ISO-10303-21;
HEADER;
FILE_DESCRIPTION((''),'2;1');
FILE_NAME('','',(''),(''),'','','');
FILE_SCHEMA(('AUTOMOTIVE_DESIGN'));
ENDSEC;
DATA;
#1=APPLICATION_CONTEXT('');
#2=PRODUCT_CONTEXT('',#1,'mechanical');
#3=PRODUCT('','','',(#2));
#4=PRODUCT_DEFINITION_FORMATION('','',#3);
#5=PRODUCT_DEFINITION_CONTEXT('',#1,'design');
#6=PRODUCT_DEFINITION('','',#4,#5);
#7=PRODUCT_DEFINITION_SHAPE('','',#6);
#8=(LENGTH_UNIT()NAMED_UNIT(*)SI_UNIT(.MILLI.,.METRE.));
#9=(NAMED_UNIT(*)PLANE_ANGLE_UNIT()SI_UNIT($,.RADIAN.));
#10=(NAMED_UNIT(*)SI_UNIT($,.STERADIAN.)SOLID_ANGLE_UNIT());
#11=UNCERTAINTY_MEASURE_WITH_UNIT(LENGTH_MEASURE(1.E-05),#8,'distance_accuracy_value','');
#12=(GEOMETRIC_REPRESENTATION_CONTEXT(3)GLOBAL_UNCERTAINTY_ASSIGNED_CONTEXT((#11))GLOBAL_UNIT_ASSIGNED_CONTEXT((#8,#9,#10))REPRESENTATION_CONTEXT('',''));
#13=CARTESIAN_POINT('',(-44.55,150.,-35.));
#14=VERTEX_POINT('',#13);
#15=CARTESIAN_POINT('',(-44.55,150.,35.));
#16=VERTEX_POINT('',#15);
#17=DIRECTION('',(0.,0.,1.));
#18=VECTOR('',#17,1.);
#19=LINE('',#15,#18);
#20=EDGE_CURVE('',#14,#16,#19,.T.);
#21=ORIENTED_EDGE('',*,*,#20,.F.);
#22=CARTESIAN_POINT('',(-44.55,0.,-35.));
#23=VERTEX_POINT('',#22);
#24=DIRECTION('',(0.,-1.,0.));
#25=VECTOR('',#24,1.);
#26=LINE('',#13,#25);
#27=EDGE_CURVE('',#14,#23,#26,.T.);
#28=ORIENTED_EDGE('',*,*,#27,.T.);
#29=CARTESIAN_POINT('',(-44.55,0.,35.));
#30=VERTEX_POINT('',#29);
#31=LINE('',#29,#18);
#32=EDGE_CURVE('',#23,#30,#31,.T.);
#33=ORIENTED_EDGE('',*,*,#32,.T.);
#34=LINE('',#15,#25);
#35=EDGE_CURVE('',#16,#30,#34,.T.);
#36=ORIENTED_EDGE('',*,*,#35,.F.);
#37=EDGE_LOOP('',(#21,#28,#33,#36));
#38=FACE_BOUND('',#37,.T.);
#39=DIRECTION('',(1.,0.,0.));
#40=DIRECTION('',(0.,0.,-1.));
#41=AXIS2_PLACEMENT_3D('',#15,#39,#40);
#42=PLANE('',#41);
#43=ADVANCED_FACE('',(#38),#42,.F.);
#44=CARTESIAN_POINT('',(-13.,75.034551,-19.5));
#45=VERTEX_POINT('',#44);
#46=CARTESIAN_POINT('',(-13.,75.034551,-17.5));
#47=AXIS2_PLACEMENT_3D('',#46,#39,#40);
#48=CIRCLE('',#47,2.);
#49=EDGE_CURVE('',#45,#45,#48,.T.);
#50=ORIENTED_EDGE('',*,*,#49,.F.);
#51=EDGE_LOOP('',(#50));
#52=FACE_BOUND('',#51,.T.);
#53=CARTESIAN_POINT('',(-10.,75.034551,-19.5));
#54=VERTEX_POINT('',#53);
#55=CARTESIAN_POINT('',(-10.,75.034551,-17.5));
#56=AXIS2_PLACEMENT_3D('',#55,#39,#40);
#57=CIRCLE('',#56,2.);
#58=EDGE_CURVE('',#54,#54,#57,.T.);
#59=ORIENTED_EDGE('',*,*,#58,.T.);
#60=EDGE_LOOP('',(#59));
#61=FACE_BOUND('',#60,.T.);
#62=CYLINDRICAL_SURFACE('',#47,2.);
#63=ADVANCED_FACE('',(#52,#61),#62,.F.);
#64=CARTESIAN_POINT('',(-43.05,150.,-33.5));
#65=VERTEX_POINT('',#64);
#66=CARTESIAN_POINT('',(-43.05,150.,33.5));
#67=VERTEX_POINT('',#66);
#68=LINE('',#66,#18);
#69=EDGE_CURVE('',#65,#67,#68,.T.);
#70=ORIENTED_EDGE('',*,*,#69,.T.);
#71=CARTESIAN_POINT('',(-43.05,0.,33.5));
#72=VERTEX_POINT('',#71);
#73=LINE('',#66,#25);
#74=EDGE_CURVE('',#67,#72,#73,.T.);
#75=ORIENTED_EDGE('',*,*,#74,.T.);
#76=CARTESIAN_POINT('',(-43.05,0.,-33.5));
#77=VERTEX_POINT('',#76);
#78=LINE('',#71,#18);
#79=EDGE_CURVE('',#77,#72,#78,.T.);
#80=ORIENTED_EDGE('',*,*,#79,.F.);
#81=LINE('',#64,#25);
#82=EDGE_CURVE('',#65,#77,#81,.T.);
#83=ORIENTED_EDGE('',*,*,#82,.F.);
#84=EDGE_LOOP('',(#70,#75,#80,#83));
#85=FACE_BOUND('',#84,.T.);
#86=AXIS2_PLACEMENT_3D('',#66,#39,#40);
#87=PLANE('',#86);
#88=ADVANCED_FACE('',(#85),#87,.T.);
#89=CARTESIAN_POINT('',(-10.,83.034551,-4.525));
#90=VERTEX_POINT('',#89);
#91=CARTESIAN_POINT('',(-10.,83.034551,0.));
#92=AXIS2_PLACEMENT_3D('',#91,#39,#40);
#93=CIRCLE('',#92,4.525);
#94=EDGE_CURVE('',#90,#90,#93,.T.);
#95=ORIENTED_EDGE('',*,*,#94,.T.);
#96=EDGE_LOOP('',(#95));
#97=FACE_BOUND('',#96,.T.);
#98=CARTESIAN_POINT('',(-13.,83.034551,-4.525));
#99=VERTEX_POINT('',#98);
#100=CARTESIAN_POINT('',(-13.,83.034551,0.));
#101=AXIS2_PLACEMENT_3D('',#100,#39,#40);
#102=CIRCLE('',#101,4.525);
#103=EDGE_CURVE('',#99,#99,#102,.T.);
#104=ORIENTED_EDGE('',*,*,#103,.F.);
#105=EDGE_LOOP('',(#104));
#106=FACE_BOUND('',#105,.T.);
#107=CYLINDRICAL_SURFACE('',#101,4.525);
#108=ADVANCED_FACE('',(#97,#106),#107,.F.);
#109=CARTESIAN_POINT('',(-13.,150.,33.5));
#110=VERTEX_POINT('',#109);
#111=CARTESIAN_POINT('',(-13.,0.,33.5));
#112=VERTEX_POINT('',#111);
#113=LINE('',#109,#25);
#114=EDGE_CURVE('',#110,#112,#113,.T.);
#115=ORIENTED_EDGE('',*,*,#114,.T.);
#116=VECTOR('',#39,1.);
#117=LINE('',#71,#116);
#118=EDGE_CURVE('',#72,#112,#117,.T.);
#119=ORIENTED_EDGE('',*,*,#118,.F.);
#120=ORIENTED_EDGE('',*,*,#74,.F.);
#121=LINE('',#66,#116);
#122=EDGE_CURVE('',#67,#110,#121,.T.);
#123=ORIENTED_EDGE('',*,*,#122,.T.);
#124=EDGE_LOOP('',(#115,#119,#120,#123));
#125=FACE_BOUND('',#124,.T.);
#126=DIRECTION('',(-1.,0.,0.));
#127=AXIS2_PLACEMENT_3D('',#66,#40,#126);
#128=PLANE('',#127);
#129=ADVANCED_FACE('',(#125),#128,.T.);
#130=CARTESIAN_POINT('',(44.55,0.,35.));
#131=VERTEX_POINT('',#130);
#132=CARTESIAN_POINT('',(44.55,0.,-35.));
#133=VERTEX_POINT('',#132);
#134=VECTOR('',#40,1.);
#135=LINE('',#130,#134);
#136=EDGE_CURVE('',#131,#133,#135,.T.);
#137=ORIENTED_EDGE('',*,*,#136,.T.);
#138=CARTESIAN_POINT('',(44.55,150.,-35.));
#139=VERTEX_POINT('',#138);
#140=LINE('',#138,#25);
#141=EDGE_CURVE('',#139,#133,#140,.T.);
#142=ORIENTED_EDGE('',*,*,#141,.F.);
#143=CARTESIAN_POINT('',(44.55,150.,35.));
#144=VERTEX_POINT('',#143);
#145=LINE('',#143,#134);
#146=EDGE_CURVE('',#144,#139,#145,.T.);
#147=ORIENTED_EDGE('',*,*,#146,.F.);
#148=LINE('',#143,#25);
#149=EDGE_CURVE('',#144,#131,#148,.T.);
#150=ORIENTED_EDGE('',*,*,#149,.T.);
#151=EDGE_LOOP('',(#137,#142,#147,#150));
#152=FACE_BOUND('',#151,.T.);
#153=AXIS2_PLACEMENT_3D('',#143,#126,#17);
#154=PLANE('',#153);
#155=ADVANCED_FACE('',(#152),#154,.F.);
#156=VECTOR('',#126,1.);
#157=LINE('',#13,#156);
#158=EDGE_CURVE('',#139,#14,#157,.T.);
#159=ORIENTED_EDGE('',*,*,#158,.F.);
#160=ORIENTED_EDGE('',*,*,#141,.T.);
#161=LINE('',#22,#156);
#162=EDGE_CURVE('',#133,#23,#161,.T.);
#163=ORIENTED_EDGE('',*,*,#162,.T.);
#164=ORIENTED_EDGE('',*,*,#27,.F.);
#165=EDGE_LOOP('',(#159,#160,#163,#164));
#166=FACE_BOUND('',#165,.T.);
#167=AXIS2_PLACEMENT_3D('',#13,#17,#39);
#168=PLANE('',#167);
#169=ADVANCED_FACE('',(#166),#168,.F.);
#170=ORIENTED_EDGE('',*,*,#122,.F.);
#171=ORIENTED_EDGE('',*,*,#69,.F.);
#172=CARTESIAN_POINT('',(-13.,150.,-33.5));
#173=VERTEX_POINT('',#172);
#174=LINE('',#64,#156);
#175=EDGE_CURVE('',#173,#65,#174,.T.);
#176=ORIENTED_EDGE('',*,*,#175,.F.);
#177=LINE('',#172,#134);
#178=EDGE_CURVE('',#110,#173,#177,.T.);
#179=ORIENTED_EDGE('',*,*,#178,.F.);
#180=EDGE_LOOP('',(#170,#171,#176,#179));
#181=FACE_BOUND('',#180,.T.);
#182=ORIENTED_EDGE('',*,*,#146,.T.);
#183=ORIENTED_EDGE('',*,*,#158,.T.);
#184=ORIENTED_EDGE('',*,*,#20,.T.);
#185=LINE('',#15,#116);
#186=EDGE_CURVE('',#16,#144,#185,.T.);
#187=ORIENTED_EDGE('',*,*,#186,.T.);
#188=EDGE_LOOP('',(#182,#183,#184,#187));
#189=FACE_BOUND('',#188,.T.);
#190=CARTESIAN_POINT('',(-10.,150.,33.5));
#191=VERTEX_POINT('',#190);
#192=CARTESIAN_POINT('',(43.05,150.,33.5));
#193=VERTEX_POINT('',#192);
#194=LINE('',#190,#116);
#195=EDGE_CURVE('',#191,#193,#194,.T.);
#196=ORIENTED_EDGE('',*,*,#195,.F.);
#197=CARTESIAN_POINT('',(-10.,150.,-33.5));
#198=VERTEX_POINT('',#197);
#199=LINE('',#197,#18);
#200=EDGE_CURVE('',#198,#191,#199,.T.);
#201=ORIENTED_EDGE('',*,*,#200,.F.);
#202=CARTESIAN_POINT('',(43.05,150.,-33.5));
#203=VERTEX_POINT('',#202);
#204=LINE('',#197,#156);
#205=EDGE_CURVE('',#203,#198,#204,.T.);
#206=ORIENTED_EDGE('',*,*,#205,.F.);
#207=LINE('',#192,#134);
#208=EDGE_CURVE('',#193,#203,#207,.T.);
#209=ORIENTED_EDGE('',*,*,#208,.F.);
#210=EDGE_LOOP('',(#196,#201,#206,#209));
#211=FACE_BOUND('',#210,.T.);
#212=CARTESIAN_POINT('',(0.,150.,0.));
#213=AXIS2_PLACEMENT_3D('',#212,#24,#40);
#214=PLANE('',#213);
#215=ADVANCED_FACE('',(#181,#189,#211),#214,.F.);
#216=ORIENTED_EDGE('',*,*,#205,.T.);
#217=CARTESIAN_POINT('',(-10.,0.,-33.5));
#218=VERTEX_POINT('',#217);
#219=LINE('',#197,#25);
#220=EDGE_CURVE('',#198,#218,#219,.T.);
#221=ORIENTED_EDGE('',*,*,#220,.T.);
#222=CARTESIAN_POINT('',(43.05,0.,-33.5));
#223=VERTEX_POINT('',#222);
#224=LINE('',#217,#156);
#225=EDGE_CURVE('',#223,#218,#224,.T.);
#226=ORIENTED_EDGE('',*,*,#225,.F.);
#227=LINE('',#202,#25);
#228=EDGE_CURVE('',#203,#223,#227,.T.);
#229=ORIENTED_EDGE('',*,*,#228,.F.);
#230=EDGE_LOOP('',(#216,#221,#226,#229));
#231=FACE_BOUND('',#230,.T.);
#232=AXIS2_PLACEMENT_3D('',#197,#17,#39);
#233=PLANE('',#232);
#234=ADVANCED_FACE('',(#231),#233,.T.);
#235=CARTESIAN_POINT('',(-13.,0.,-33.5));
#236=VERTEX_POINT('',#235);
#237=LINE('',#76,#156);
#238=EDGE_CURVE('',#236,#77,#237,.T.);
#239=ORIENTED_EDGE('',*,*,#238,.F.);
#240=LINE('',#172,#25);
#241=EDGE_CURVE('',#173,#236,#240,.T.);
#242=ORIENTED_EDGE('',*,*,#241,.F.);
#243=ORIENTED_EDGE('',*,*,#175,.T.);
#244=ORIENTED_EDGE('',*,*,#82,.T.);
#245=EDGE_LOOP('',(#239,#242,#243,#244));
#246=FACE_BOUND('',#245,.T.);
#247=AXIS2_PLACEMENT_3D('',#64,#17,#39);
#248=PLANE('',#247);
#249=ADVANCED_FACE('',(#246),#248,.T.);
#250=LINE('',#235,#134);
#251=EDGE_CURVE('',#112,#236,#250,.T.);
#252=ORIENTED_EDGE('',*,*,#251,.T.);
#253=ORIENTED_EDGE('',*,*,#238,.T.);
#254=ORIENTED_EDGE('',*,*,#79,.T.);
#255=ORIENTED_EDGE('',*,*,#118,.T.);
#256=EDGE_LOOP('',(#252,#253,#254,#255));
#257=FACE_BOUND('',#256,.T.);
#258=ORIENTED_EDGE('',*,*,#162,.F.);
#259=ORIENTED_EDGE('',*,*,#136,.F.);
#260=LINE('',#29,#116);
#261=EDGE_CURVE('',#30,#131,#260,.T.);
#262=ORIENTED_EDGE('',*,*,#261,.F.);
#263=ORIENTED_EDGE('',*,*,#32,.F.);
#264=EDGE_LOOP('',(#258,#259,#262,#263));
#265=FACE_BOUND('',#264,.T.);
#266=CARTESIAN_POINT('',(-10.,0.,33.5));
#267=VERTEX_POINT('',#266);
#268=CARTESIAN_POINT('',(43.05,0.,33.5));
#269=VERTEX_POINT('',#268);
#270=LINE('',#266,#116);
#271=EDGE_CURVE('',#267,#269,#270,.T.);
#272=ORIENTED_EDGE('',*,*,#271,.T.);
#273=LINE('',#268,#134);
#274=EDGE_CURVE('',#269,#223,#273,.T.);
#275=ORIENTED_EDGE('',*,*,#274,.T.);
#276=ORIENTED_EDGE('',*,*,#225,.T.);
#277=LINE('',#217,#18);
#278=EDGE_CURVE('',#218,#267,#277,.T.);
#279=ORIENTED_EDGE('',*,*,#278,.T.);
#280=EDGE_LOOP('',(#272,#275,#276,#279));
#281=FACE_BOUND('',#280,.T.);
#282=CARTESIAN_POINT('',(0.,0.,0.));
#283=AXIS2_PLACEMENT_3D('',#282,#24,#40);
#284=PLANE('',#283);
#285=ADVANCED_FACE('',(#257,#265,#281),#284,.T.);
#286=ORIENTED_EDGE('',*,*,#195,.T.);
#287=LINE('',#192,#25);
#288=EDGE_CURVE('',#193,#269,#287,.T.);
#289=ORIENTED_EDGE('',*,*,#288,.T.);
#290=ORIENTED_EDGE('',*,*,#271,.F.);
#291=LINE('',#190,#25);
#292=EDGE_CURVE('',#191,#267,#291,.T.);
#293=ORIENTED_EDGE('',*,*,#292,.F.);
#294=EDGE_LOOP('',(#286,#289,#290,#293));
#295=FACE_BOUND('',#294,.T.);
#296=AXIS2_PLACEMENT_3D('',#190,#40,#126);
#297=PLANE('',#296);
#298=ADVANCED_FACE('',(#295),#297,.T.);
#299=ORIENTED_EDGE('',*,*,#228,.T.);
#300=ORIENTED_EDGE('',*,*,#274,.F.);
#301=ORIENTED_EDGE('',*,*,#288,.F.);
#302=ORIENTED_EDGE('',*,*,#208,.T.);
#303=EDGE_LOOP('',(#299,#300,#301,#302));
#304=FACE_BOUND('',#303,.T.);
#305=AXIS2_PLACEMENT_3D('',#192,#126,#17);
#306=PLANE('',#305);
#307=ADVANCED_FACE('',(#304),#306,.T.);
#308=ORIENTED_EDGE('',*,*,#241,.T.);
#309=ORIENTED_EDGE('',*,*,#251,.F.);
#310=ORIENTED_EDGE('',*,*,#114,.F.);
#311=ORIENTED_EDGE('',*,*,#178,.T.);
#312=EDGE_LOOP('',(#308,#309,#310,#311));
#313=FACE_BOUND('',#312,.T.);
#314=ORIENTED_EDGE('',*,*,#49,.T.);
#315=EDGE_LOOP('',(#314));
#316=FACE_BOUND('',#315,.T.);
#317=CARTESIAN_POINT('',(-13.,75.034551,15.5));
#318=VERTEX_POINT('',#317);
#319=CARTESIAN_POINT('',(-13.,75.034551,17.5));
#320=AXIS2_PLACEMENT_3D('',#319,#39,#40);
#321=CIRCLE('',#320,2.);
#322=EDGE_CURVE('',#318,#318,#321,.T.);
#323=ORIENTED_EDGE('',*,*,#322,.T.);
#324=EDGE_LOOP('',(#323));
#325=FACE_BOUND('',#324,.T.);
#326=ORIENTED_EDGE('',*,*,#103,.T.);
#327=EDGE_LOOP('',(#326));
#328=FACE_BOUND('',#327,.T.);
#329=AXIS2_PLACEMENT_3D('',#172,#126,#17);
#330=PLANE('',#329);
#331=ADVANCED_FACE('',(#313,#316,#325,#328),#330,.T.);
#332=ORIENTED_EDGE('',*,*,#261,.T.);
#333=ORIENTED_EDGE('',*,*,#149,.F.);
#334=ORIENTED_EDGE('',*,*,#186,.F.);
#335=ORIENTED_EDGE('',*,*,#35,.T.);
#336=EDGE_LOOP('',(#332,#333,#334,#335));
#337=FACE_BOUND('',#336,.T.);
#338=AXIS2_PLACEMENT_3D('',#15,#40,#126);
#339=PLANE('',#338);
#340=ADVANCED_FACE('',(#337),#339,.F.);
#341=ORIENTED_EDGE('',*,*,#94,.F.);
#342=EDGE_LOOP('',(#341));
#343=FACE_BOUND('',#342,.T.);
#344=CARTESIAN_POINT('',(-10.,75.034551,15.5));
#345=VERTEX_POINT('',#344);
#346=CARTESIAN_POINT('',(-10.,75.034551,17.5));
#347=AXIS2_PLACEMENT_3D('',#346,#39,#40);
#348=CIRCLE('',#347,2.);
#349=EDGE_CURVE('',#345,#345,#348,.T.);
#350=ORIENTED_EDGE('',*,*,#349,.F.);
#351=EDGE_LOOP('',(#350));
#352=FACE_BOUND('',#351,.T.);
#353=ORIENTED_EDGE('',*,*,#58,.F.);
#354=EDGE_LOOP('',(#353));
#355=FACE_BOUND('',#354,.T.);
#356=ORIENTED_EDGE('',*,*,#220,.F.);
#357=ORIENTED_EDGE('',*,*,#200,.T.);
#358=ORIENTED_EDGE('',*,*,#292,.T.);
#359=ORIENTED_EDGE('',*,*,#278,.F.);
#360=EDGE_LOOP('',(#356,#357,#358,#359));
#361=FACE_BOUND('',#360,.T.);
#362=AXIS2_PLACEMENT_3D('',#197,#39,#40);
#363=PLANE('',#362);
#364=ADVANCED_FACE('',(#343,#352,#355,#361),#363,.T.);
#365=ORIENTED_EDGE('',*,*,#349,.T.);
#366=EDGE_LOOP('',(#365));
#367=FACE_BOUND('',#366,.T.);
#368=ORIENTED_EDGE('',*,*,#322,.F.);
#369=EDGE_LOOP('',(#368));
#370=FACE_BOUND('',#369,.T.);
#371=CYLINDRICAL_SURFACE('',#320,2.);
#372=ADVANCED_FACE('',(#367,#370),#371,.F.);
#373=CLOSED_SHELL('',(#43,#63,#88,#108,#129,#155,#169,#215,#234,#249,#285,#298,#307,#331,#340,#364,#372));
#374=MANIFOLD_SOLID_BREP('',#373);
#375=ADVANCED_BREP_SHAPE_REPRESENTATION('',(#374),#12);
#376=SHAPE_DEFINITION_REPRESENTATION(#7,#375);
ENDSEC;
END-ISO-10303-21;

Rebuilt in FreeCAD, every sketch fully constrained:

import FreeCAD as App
import Part
import Sketcher

V = App.Vector
Q = App.Units.Quantity

doc = App.newDocument("Part")
body = doc.addObject("PartDesign::Body", "Body")

# Sketch on XZ plane
sketch1 = body.newObject("Sketcher::SketchObject", "Sketch")
sketch1.AttachmentSupport = (doc.getObject("XZ_Plane"), [""])
sketch1.MapMode = "FlatFace"
sketch1.addGeometry([
    Part.LineSegment(V(-44.55, -35, 0), V(-44.55, 35, 0)),  # 0
    Part.LineSegment(V(-44.55, 35, 0), V(44.55, 35, 0)),  # 1
    Part.LineSegment(V(44.55, 35, 0), V(44.55, -35, 0)),  # 2
    Part.LineSegment(V(44.55, -35, 0), V(-44.55, -35, 0)),  # 3
    Part.LineSegment(V(-13, 33.5, 0), V(-43.05, 33.5, 0)),  # 4
    Part.LineSegment(V(-43.05, 33.5, 0), V(-43.05, -33.5, 0)),  # 5
    Part.LineSegment(V(-43.05, -33.5, 0), V(-13, -33.5, 0)),  # 6
    Part.LineSegment(V(-13, -33.5, 0), V(-13, 33.5, 0)),  # 7
    Part.LineSegment(V(43.05, 33.5, 0), V(-10, 33.5, 0)),  # 8
    Part.LineSegment(V(-10, 33.5, 0), V(-10, -33.5, 0)),  # 9
    Part.LineSegment(V(-10, -33.5, 0), V(43.05, -33.5, 0)),  # 10
    Part.LineSegment(V(43.05, -33.5, 0), V(43.05, 33.5, 0)),  # 11
], False)
sketch1.addConstraint([
    Sketcher.Constraint("Coincident", 0, 2, 1, 1),
    Sketcher.Constraint("Coincident", 1, 2, 2, 1),
    Sketcher.Constraint("Coincident", 2, 2, 3, 1),
    Sketcher.Constraint("Coincident", 3, 2, 0, 1),
    Sketcher.Constraint("Coincident", 4, 2, 5, 1),
    Sketcher.Constraint("Coincident", 5, 2, 6, 1),
    Sketcher.Constraint("Coincident", 6, 2, 7, 1),
    Sketcher.Constraint("Coincident", 7, 2, 4, 1),
    Sketcher.Constraint("Coincident", 8, 2, 9, 1),
    Sketcher.Constraint("Coincident", 9, 2, 10, 1),
    Sketcher.Constraint("Coincident", 10, 2, 11, 1),
    Sketcher.Constraint("Coincident", 11, 2, 8, 1),
    Sketcher.Constraint("Vertical", 0),
    Sketcher.Constraint("Horizontal", 1),
    Sketcher.Constraint("Vertical", 2),
    Sketcher.Constraint("Horizontal", 3),
    Sketcher.Constraint("Horizontal", 4),
    Sketcher.Constraint("Vertical", 5),
    Sketcher.Constraint("Horizontal", 6),
    Sketcher.Constraint("Vertical", 7),
    Sketcher.Constraint("Horizontal", 8),
    Sketcher.Constraint("Vertical", 9),
    Sketcher.Constraint("Horizontal", 10),
    Sketcher.Constraint("Vertical", 11),
    Sketcher.Constraint("Symmetric", 0, 2, 2, 2, -1, 1),
    Sketcher.Constraint("Symmetric", 4, 2, 10, 2, -1, 1),
    Sketcher.Constraint("Horizontal", 7, 2, 8, 2),
    Sketcher.Constraint("Horizontal", 6, 2, 9, 2),
    Sketcher.Constraint("DistanceY", 0, 1, 0, 2, Q("70 mm")),
    Sketcher.Constraint("DistanceY", 5, 2, 5, 1, Q("67 mm")),
    Sketcher.Constraint("DistanceX", 1, 1, 1, 2, Q("89.1 mm")),
    Sketcher.Constraint("DistanceX", 6, 2, -1, 1, Q("13 mm")),
    Sketcher.Constraint("DistanceX", 8, 2, -1, 1, Q("10 mm")),
    Sketcher.Constraint("DistanceX", 4, 2, 4, 1, Q("30.05 mm")),
])
pad1 = body.newObject("PartDesign::Pad", "Pad")
pad1.Profile = sketch1
pad1.Length = 150
pad1.Reversed = True

# Sketch on YZ plane
sketch2 = body.newObject("Sketcher::SketchObject", "Sketch001")
sketch2.AttachmentSupport = (doc.getObject("YZ_Plane"), [""])
sketch2.MapMode = "FlatFace"
sketch2.AttachmentOffset = App.Placement(V(0, 0, -10), App.Rotation())
sketch2.addGeometry([
    Part.Circle(V(75.034551, -17.5, 0), V(0, 0, 1), 2),
    Part.Circle(V(75.034551, 17.5, 0), V(0, 0, 1), 2),
    Part.Circle(V(83.034551, 0, 0), V(0, 0, 1), 4.525),
], False)
sketch2.addConstraint([
    Sketcher.Constraint("Equal", 0, 1),
    Sketcher.Constraint("Symmetric", 0, 3, 1, 3, -1),
    Sketcher.Constraint("PointOnObject", 2, 3, -1),
    Sketcher.Constraint("Diameter", 0, Q("4 mm")),
    Sketcher.Constraint("Diameter", 2, Q("9.05 mm")),
    Sketcher.Constraint("DistanceY", 0, 3, 1, 3, Q("35 mm")),
    Sketcher.Constraint("DistanceX", 0, 3, 2, 3, Q("8 mm")),
    Sketcher.Constraint("DistanceX", -1, 1, 0, 3, Q("75.034551 mm")),
])
pocket1 = body.newObject("PartDesign::Pocket", "Pocket")
pocket1.Profile = sketch2
pocket1.Length = 3

doc.recompute()
